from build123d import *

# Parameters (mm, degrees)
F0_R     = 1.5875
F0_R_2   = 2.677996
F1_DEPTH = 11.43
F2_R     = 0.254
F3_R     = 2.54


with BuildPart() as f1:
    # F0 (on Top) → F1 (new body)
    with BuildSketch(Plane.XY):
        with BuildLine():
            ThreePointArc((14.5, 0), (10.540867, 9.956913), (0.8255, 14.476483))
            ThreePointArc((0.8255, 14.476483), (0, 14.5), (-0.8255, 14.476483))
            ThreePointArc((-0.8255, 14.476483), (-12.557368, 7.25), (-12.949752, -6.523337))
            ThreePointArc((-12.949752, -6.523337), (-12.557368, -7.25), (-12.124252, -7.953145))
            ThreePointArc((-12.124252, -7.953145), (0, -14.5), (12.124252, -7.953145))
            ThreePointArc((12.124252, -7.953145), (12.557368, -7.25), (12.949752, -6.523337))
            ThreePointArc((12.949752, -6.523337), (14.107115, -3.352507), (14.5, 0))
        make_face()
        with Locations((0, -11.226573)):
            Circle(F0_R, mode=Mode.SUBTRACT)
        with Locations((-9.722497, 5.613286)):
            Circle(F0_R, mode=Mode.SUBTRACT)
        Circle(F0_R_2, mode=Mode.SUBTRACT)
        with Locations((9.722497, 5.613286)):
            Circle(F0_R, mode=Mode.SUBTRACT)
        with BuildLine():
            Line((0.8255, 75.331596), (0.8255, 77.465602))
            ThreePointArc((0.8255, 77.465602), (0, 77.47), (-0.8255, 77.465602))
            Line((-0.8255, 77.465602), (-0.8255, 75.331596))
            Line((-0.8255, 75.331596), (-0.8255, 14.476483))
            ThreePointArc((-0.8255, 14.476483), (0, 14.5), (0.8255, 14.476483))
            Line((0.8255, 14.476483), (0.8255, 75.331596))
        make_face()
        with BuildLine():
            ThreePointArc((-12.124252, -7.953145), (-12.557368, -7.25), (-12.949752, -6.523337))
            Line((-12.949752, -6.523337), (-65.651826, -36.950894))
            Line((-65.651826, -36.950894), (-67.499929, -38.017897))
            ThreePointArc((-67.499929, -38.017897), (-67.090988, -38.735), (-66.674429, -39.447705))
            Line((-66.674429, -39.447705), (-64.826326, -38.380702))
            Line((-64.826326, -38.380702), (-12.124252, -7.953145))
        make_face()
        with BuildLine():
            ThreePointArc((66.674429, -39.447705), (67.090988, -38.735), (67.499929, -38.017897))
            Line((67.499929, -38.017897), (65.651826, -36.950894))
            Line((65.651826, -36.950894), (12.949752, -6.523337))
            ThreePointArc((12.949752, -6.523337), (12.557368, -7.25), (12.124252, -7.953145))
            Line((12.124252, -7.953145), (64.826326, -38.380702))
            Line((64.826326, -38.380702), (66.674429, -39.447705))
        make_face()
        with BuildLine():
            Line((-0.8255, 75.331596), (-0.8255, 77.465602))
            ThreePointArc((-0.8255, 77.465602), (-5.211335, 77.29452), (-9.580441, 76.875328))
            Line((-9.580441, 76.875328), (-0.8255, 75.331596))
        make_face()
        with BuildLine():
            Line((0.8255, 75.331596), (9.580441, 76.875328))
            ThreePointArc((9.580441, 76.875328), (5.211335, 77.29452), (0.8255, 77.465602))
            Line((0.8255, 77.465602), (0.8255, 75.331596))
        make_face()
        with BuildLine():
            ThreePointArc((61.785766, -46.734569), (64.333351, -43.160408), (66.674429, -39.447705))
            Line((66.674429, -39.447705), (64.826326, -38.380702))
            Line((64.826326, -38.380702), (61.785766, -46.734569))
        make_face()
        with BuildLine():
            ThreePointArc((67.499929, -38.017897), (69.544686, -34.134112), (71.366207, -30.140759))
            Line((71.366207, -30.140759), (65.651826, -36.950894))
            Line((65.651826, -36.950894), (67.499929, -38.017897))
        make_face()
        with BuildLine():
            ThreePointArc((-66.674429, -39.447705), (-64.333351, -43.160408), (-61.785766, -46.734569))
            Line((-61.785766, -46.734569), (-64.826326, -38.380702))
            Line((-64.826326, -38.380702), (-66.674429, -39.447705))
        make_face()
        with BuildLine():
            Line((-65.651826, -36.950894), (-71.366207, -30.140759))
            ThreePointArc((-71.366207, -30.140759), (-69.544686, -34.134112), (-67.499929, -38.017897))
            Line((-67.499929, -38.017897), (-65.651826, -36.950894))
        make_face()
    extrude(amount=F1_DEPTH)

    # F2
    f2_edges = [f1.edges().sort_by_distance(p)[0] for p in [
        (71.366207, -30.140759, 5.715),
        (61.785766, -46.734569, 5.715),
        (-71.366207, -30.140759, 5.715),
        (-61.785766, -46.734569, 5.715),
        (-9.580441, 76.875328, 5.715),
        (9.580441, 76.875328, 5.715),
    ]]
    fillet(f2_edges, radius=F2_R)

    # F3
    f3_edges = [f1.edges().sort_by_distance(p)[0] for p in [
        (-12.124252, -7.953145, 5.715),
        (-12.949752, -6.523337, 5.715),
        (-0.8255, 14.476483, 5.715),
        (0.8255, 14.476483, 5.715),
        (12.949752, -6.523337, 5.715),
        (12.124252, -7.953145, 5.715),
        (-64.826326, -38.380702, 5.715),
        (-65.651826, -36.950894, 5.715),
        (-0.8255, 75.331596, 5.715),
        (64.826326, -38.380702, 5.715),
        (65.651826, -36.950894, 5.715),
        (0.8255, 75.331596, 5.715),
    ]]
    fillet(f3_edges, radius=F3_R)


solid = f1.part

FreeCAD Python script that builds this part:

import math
import FreeCAD as App
import Part
import Sketcher
from FreeCAD import Vector
Q = App.Units.Quantity


def edges_at(feature, points):
    """Names of the edges that pass closest to the given points."""
    edges = feature.Shape.Edges
    near = lambda p: min(range(len(edges)), key=lambda i: edges[i].distToShape(Part.Vertex(*p))[0])
    return sorted({f"Edge{near(p) + 1}" for p in points})

doc = App.newDocument("Part")
body = doc.addObject("PartDesign::Body", "Body")

sketch1 = body.newObject("Sketcher::SketchObject", "Sketch")
sketch1.AttachmentSupport = (doc.getObject("XY_Plane"), [""])
sketch1.MapMode = "FlatFace"
sketch1.addGeometry([
    Part.ArcOfCircle(Part.Circle(Vector(-0.000001, -0.000001, 0), Vector(0, 0, 1), 14.500001), math.radians(0.000003), math.radians(86.736323)),
    Part.LineSegment(Vector(0.8255, 14.476483, 0), Vector(0.8255, 75.331596, 0)),
    Part.LineSegment(Vector(0.8255, 75.331596, 0), Vector(9.580441, 76.875328, 0)),
    Part.ArcOfCircle(Part.Circle(Vector(-0.000026, -0.00036, 0), Vector(0, 0, 1), 77.47036), math.radians(82.896261), math.radians(89.389443)),
    Part.ArcOfCircle(Part.Circle(Vector(0, -0.004942, 0), Vector(0, 0, 1), 77.474942), math.radians(89.389499), math.radians(90.610501)),
    Part.ArcOfCircle(Part.Circle(Vector(0.000026, -0.00036, 0), Vector(0, 0, 1), 77.47036), math.radians(90.610557), math.radians(97.103739)),
    Part.LineSegment(Vector(-9.580441, 76.875328, 0), Vector(-0.8255, 75.331596, 0)),
    Part.LineSegment(Vector(-0.8255, 75.331596, 0), Vector(-0.8255, 14.476483, 0)),
    Part.ArcOfCircle(Part.Circle(Vector(0.000001, 0, 0), Vector(0, 0, 1), 14.500001), math.radians(93.263677), math.radians(206.736322)),
    Part.LineSegment(Vector(-12.949752, -6.523337, 0), Vector(-65.651826, -36.950894, 0)),
    Part.LineSegment(Vector(-65.651826, -36.950894, 0), Vector(-71.366207, -30.140759, 0)),
    Part.ArcOfCircle(Part.Circle(Vector(-0.000258, -0.00013, 0), Vector(0, 0, 1), 77.469711), math.radians(-157.103766), math.radians(-150.61053)),
    Part.ArcOfCircle(Part.Circle(Vector(0.001375, 0.000792, 0), Vector(0, 0, 1), 77.471587), math.radians(-150.610529), math.radians(-149.389473)),
    Part.ArcOfCircle(Part.Circle(Vector(-0.000015, -0.000004, 0), Vector(0, 0, 1), 77.469985), math.radians(-149.389456), math.radians(-142.896243)),
    Part.LineSegment(Vector(-61.785766, -46.734569, 0), Vector(-64.826326, -38.380702, 0)),
    Part.LineSegment(Vector(-64.826326, -38.380702, 0), Vector(-12.124252, -7.953145, 0)),
    Part.ArcOfCircle(Part.Circle(Vector(0, 0, 0), Vector(0, 0, 1), 14.5), math.radians(-146.736328), math.radians(-33.263672)),
    Part.LineSegment(Vector(12.124252, -7.953145, 0), Vector(64.826326, -38.380702, 0)),
    Part.LineSegment(Vector(64.826326, -38.380702, 0), Vector(61.785766, -46.734569, 0)),
    Part.ArcOfCircle(Part.Circle(Vector(0.000015, -0.000004, 0), Vector(0, 0, 1), 77.469985), math.radians(-37.103757), math.radians(-30.610544)),
    Part.ArcOfCircle(Part.Circle(Vector(-0.001375, 0.000792, 0), Vector(0, 0, 1), 77.471587), math.radians(-30.610527), math.radians(-29.389471)),
    Part.ArcOfCircle(Part.Circle(Vector(0.000258, -0.00013, 0), Vector(0, 0, 1), 77.469711), math.radians(-29.38947), math.radians(-22.896234)),
    Part.LineSegment(Vector(71.366207, -30.140759, 0), Vector(65.651826, -36.950894, 0)),
    Part.LineSegment(Vector(65.651826, -36.950894, 0), Vector(12.949752, -6.523337, 0)),
    Part.ArcOfCircle(Part.Circle(Vector(-0.000006, 0.000001, 0), Vector(0, 0, 1), 14.500006), math.radians(-26.73632), math.radians(-0.000004)),
    Part.Circle(Vector(0, -11.226573, 0), Vector(0, 0, 1), 1.5875),
    Part.Circle(Vector(-9.722497, 5.613286, 0), Vector(0, 0, 1), 1.5875),
    Part.Circle(Vector(0, 0, 0), Vector(0, 0, 1), 2.677996),
    Part.Circle(Vector(9.722497, 5.613286, 0), Vector(0, 0, 1), 1.5875),
], False)
sketch1.addConstraint([
    Sketcher.Constraint("Coincident", 0, 2, 1, 1),
    Sketcher.Constraint("Coincident", 1, 2, 2, 1),
    Sketcher.Constraint("Coincident", 2, 2, 3, 1),
    Sketcher.Constraint("Coincident", 3, 2, 4, 1),
    Sketcher.Constraint("Coincident", 4, 2, 5, 1),
    Sketcher.Constraint("Coincident", 5, 2, 6, 1),
    Sketcher.Constraint("Coincident", 6, 2, 7, 1),
    Sketcher.Constraint("Coincident", 7, 2, 8, 1),
    Sketcher.Constraint("Coincident", 8, 2, 9, 1),
    Sketcher.Constraint("Coincident", 9, 2, 10, 1),
    Sketcher.Constraint("Coincident", 10, 2, 11, 1),
    Sketcher.Constraint("Coincident", 11, 2, 12, 1),
    Sketcher.Constraint("Coincident", 12, 2, 13, 1),
    Sketcher.Constraint("Coincident", 13, 2, 14, 1),
    Sketcher.Constraint("Coincident", 14, 2, 15, 1),
    Sketcher.Constraint("Coincident", 15, 2, 16, 1),
    Sketcher.Constraint("Coincident", 16, 2, 17, 1),
    Sketcher.Constraint("Coincident", 17, 2, 18, 1),
    Sketcher.Constraint("Coincident", 18, 2, 19, 1),
    Sketcher.Constraint("Coincident", 19, 2, 20, 1),
    Sketcher.Constraint("Coincident", 20, 2, 21, 1),
    Sketcher.Constraint("Coincident", 21, 2, 22, 1),
    Sketcher.Constraint("Coincident", 22, 2, 23, 1),
    Sketcher.Constraint("Coincident", 23, 2, 24, 1),
    Sketcher.Constraint("Coincident", 24, 2, 0, 1),
    Sketcher.Constraint("Vertical", 1),
    Sketcher.Constraint("Vertical", 7),
    Sketcher.Constraint("Coincident", 0, 3, -1, 1),
    Sketcher.Constraint("Coincident", 8, 3, -1, 1),
    Sketcher.Constraint("Coincident", 16, 3, -1, 1),
    Sketcher.Constraint("Coincident", 24, 3, -1, 1),
    Sketcher.Constraint("Coincident", 27, 3, -1, 1),
    Sketcher.Constraint("PointOnObject", 4, 3, -2),
    Sketcher.Constraint("PointOnObject", 25, 3, -2),
    Sketcher.Constraint("PointOnObject", 24, 2, -1),
    Sketcher.Constraint("Diameter", 25, Q("0.125 in")),
    Sketcher.Constraint("Diameter", 26, Q("0.125 in")),
    Sketcher.Constraint("Diameter", 28, Q("0.125 in")),
    Sketcher.Constraint("Distance", 2, Q("0.35 in")),
    Sketcher.Constraint("Distance", 6, Q("0.35 in")),
    Sketcher.Constraint("Distance", 10, Q("0.35 in")),
    Sketcher.Constraint("Distance", 14, Q("0.35 in")),
    Sketcher.Constraint("Distance", 18, Q("0.35 in")),
    Sketcher.Constraint("Distance", 22, Q("0.35 in")),
    Sketcher.Constraint("Radius", 0, Q("14.500001 mm")),
    Sketcher.Constraint("Radius", 8, Q("14.500001 mm")),
    Sketcher.Constraint("Radius", 16, Q("14.5 mm")),
    Sketcher.Constraint("Diameter", 27, Q("5.355992 mm")),
    Sketcher.Constraint("Radius", 3, Q("77.47036 mm")),
    Sketcher.Constraint("Radius", 5, Q("77.47036 mm")),
    Sketcher.Constraint("Radius", 11, Q("77.469711 mm")),
    Sketcher.Constraint("Radius", 21, Q("77.469711 mm")),
    Sketcher.Constraint("DistanceX", 4, 2, 3, 2, Q("0.065 in")),
    Sketcher.Constraint("DistanceX", 4, 2, 1, 2, Q("0.065 in")),
    Sketcher.Constraint("DistanceX", 6, 2, 1, 2, Q("0.065 in")),
    Sketcher.Constraint("DistanceX", -1, 1, 0, 2, Q("0.0325 in")),
    Sketcher.Constraint("Radius", 4, Q("77.474942 mm")),
    Sketcher.Constraint("Radius", 12, Q("77.471587 mm")),
    Sketcher.Constraint("Radius", 13, Q("77.469985 mm")),
    Sketcher.Constraint("Radius", 19, Q("77.469985 mm")),
    Sketcher.Constraint("Radius", 20, Q("77.471587 mm")),
    Sketcher.Constraint("DistanceX", 11, 2, 12, 2, Q("0.0325 in")),
    Sketcher.Constraint("DistanceX", 9, 2, 14, 2, Q("0.0325 in")),
    Sketcher.Constraint("DistanceX", 8, 2, 15, 2, Q("0.0325 in")),
    Sketcher.Constraint("DistanceX", 19, 2, 20, 2, Q("0.0325 in")),
    Sketcher.Constraint("DistanceX", 17, 2, 22, 2, Q("0.0325 in")),
    Sketcher.Constraint("DistanceX", 16, 2, 23, 2, Q("0.0325 in")),
    Sketcher.Constraint("DistanceX", 3, 3, 12, 3, Q("0.001402 mm")),
    Sketcher.Constraint("DistanceY", 1, 1, 1, 2, Q("60.855113 mm")),
    Sketcher.Constraint("DistanceY", 7, 2, 7, 1, Q("60.855113 mm")),
    Sketcher.Constraint("DistanceY", 3, 3, -1, 1, Q("0.00036 mm")),
    Sketcher.Constraint("DistanceY", 5, 3, -1, 1, Q("0.00036 mm")),
    Sketcher.Constraint("DistanceX", 11, 3, -1, 1, Q("0.000258 mm")),
    Sketcher.Constraint("DistanceY", 11, 3, -1, 1, Q("0.00013 mm")),
    Sketcher.Constraint("DistanceX", -1, 1, 21, 3, Q("0.000258 mm")),
    Sketcher.Constraint("DistanceY", 21, 3, -1, 1, Q("0.00013 mm")),
    Sketcher.Constraint("DistanceX", -1, 1, 2, 2, Q("9.580441 mm")),
    Sketcher.Constraint("DistanceX", 8, 2, -1, 1, Q("12.949752 mm")),
    Sketcher.Constraint("DistanceY", 10, 2, -1, 1, Q("30.140759 mm")),
    Sketcher.Constraint("DistanceX", 11, 2, -1, 1, Q("67.499929 mm")),
    Sketcher.Constraint("DistanceY", 13, 2, -1, 1, Q("46.734569 mm")),
    Sketcher.Constraint("DistanceY", 18, 2, -1, 1, Q("46.734569 mm")),
    Sketcher.Constraint("DistanceX", -1, 1, 19, 2, Q("66.674429 mm")),
    Sketcher.Constraint("DistanceY", 21, 2, -1, 1, Q("30.140759 mm")),
    Sketcher.Constraint("DistanceX", 20, 3, 13, 3, Q("0.00136 mm")),
    Sketcher.Constraint("DistanceY", 25, 3, 4, 3, Q("11.221631 mm")),
    Sketcher.Constraint("DistanceX", 26, 3, 20, 3, Q("9.721122 mm")),
    Sketcher.Constraint("DistanceX", 26, 3, 11, 3, Q("9.722239 mm")),
    Sketcher.Constraint("DistanceY", 13, 3, 26, 3, Q("5.61329 mm")),
    Sketcher.Constraint("DistanceX", 12, 3, 28, 3, Q("9.721122 mm")),
    Sketcher.Constraint("DistanceY", 19, 3, 28, 3, Q("5.61329 mm")),
    Sketcher.Constraint("DistanceY", 28, 3, 1, 2, Q("69.71831 mm")),
    Sketcher.Constraint("DistanceX", 9, 2, 26, 3, Q("55.929329 mm")),
    Sketcher.Constraint("DistanceY", 16, 2, 28, 3, Q("13.566431 mm")),
    Sketcher.Constraint("DistanceY", 17, 2, 25, 3, Q("27.154129 mm")),
])
pad1 = body.newObject("PartDesign::Pad", "Pad")
pad1.Profile = sketch1
pad1.Length = Q("0.45 in")
doc.recompute()

fillet = body.newObject("PartDesign::Fillet", "Fillet")
fillet.Base = (pad1, edges_at(pad1, [
    (71.366, -30.141, 5.715),
    (61.786, -46.735, 5.715),
    (-71.366, -30.141, 5.715),
    (-61.786, -46.735, 5.715),
    (-9.58, 76.875, 5.715),
    (9.58, 76.875, 5.715),
]))
fillet.Radius = Q("0.01 in")
doc.recompute()

fillet2 = body.newObject("PartDesign::Fillet", "Fillet001")
fillet2.Base = (fillet, edges_at(fillet, [
    (-12.124, -7.953, 5.715),
    (-12.95, -6.523, 5.715),
    (-0.826, 14.476, 5.715),
    (0.826, 14.476, 5.715),
    (12.95, -6.523, 5.715),
    (12.124, -7.953, 5.715),
    (-64.826, -38.381, 5.715),
    (-65.652, -36.951, 5.715),
    (-0.826, 75.332, 5.715),
    (64.826, -38.381, 5.715),
    (65.652, -36.951, 5.715),
    (0.826, 75.332, 5.715),
]))
fillet2.Radius = Q("0.1 in")

doc.recompute()
